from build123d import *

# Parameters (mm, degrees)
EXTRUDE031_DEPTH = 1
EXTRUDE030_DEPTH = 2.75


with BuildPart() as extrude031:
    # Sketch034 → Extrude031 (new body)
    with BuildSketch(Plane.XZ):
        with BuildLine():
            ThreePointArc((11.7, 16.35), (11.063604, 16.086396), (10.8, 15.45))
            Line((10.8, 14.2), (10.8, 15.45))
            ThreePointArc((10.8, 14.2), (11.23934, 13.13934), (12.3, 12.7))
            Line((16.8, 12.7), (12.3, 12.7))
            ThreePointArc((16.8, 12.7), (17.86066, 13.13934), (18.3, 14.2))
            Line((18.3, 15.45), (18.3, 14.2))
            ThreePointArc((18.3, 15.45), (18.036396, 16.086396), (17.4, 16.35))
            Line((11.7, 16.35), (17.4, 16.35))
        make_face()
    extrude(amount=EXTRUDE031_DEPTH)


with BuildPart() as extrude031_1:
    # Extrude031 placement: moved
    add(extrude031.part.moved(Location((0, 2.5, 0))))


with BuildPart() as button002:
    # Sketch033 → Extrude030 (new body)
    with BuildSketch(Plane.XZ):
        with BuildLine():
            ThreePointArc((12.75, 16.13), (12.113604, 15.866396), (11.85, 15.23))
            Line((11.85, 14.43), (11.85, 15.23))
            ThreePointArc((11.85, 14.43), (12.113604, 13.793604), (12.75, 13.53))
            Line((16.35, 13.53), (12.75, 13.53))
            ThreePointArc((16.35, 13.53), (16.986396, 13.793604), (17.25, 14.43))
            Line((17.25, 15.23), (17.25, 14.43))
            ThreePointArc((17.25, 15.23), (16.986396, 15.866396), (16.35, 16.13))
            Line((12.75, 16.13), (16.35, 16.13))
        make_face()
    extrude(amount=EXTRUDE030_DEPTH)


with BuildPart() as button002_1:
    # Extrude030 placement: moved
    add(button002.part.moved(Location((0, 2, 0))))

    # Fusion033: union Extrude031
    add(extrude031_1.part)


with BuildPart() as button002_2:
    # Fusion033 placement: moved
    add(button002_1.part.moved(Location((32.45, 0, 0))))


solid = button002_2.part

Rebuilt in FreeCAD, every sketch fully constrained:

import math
import FreeCAD as App
import Part
import Sketcher

V = App.Vector

doc = App.newDocument("Part")
body = doc.addObject("PartDesign::Body", "Body")

# Sketch on XZ plane
sketch1 = doc.addObject("Sketcher::SketchObject", "Sketch")
body.addObject(sketch1)
sketch1.AttachmentSupport = (doc.XZ_Plane, [""])
sketch1.MapMode = "FlatFace"
sketch1.addGeometry(Part.ArcOfCircle(Part.Circle(V(11.7, 15.4, 0), V(0, 0, 1), 0.9), math.radians(90), math.radians(180)), False)
sketch1.addGeometry(Part.LineSegment(V(10.8, 15.4, 0), V(10.8, 14.2, 0)), False)
sketch1.addGeometry(Part.ArcOfCircle(Part.Circle(V(12.3, 14.2, 0), V(0, 0, 1), 1.5), math.radians(-180), math.radians(-90)), False)
sketch1.addGeometry(Part.LineSegment(V(12.3, 12.7, 0), V(16.8, 12.7, 0)), False)
sketch1.addGeometry(Part.ArcOfCircle(Part.Circle(V(16.8, 14.2, 0), V(0, 0, 1), 1.5), math.radians(-90), math.radians(0)), False)
sketch1.addGeometry(Part.LineSegment(V(18.3, 14.2, 0), V(18.3, 15.4, 0)), False)
sketch1.addGeometry(Part.ArcOfCircle(Part.Circle(V(17.4, 15.4, 0), V(0, 0, 1), 0.9), math.radians(0), math.radians(90)), False)
sketch1.addGeometry(Part.LineSegment(V(17.4, 16.4, 0), V(11.7, 16.4, 0)), False)
sketch1.addConstraint(Sketcher.Constraint("Tangent", 0, 2, 1, 1))
sketch1.addConstraint(Sketcher.Constraint("Tangent", 1, 2, 2, 1))
sketch1.addConstraint(Sketcher.Constraint("Tangent", 2, 2, 3, 1))
sketch1.addConstraint(Sketcher.Constraint("Tangent", 3, 2, 4, 1))
sketch1.addConstraint(Sketcher.Constraint("Tangent", 4, 2, 5, 1))
sketch1.addConstraint(Sketcher.Constraint("Tangent", 5, 2, 6, 1))
sketch1.addConstraint(Sketcher.Constraint("Tangent", 6, 2, 7, 1))
sketch1.addConstraint(Sketcher.Constraint("Tangent", 7, 2, 0, 1))
sketch1.addConstraint(Sketcher.Constraint("Vertical", 1))
sketch1.addConstraint(Sketcher.Constraint("Horizontal", 3))
sketch1.addConstraint(Sketcher.Constraint("Vertical", 5))
sketch1.addConstraint(Sketcher.Constraint("Horizontal", 7))
sketch1.addConstraint(Sketcher.Constraint("Equal", 2, 4))
sketch1.addConstraint(Sketcher.Constraint("Equal", 0, 6))
sketch1.addConstraint(Sketcher.Constraint("Radius", 0, 0.9))
sketch1.addConstraint(Sketcher.Constraint("Radius", 2, 1.500001))
sketch1.addConstraint(Sketcher.Constraint("DistanceX", 3, 1, 3, 2, 4.5))
sketch1.addConstraint(Sketcher.Constraint("DistanceY", 1, 2, 1, 1, 1.25))
sketch1.addConstraint(Sketcher.Constraint("DistanceX", -1, 1, 0, 3, 11.7))
sketch1.addConstraint(Sketcher.Constraint("DistanceY", -1, 1, 2, 3, 14.200001))
pad1 = doc.addObject("PartDesign::Pad", "Pad")
body.addObject(pad1)
pad1.Profile = sketch1
pad1.Length = 1
body2 = doc.addObject("PartDesign::Body", "Body001")
doc.recompute()

body.Placement = App.Placement(V(0, 2.5, 0), App.Rotation(V(0, 0, 1), 0))
boolean = doc.addObject("PartDesign::Boolean", "Boolean")
body2.addObject(boolean)
boolean.Type = "Fuse"
boolean.addObjects([body])
body3 = doc.addObject("PartDesign::Body", "Body002")

# Sketch on XZ plane
sketch2 = doc.addObject("Sketcher::SketchObject", "Sketch001")
body3.addObject(sketch2)
sketch2.AttachmentSupport = (doc.getObject("XZ_Plane002"), [""])
sketch2.MapMode = "FlatFace"
sketch2.addGeometry(Part.ArcOfCircle(Part.Circle(V(12.8, 15.2, 0), V(0, 0, 1), 0.9), math.radians(90), math.radians(180)), False)
sketch2.addGeometry(Part.LineSegment(V(11.8, 15.2, 0), V(11.8, 14.4, 0)), False)
sketch2.addGeometry(Part.ArcOfCircle(Part.Circle(V(12.8, 14.4, 0), V(0, 0, 1), 0.9), math.radians(-180), math.radians(-90)), False)
sketch2.addGeometry(Part.LineSegment(V(12.8, 13.5, 0), V(16.4, 13.5, 0)), False)
sketch2.addGeometry(Part.ArcOfCircle(Part.Circle(V(16.3, 14.4, 0), V(0, 0, 1), 0.9), math.radians(-90), math.radians(0)), False)
sketch2.addGeometry(Part.LineSegment(V(17.2, 14.4, 0), V(17.2, 15.2, 0)), False)
sketch2.addGeometry(Part.ArcOfCircle(Part.Circle(V(16.3, 15.2, 0), V(0, 0, 1), 0.9), math.radians(0), math.radians(90)), False)
sketch2.addGeometry(Part.LineSegment(V(16.4, 16.1, 0), V(12.8, 16.1, 0)), False)
sketch2.addConstraint(Sketcher.Constraint("Tangent", 0, 2, 1, 1))
sketch2.addConstraint(Sketcher.Constraint("Tangent", 1, 2, 2, 1))
sketch2.addConstraint(Sketcher.Constraint("Tangent", 2, 2, 3, 1))
sketch2.addConstraint(Sketcher.Constraint("Tangent", 3, 2, 4, 1))
sketch2.addConstraint(Sketcher.Constraint("Tangent", 4, 2, 5, 1))
sketch2.addConstraint(Sketcher.Constraint("Tangent", 5, 2, 6, 1))
sketch2.addConstraint(Sketcher.Constraint("Tangent", 6, 2, 7, 1))
sketch2.addConstraint(Sketcher.Constraint("Tangent", 7, 2, 0, 1))
sketch2.addConstraint(Sketcher.Constraint("Vertical", 1))
sketch2.addConstraint(Sketcher.Constraint("Horizontal", 3))
sketch2.addConstraint(Sketcher.Constraint("Vertical", 5))
sketch2.addConstraint(Sketcher.Constraint("Horizontal", 7))
sketch2.addConstraint(Sketcher.Constraint("Equal", 0, 2))
sketch2.addConstraint(Sketcher.Constraint("Equal", 2, 4))
sketch2.addConstraint(Sketcher.Constraint("Equal", 4, 6))
sketch2.addConstraint(Sketcher.Constraint("Radius", 0, 0.9))
sketch2.addConstraint(Sketcher.Constraint("DistanceX", 3, 1, 3, 2, 3.6))
sketch2.addConstraint(Sketcher.Constraint("DistanceY", 1, 2, 1, 1, 0.8))
sketch2.addConstraint(Sketcher.Constraint("DistanceX", -1, 1, 0, 3, 12.75))
sketch2.addConstraint(Sketcher.Constraint("DistanceY", -1, 1, 0, 3, 15.23))
pad2 = doc.addObject("PartDesign::Pad", "Pad001")
body3.addObject(pad2)
pad2.Profile = sketch2
pad2.Length = 2.75
body4 = doc.addObject("PartDesign::Body", "Body003")
doc.recompute()

body3.Placement = App.Placement(V(0, 2, 0), App.Rotation(V(0, 0, 1), 0))
boolean2 = doc.addObject("PartDesign::Boolean", "Boolean001")
body4.addObject(boolean2)
boolean2.Type = "Fuse"
boolean2.addObjects([body3])
doc.recompute()

boolean3 = doc.addObject("PartDesign::Boolean", "Boolean002")
body4.addObject(boolean3)
boolean3.Type = "Fuse"
boolean3.addObjects([body2])
body5 = doc.addObject("PartDesign::Body", "Body004")
doc.recompute()

body4.Placement = App.Placement(V(32.45, 0, 0), App.Rotation(V(0, 0, 1), 0))
boolean4 = doc.addObject("PartDesign::Boolean", "Boolean003")
body5.addObject(boolean4)
boolean4.Type = "Fuse"
boolean4.addObjects([body4])

doc.recompute()
